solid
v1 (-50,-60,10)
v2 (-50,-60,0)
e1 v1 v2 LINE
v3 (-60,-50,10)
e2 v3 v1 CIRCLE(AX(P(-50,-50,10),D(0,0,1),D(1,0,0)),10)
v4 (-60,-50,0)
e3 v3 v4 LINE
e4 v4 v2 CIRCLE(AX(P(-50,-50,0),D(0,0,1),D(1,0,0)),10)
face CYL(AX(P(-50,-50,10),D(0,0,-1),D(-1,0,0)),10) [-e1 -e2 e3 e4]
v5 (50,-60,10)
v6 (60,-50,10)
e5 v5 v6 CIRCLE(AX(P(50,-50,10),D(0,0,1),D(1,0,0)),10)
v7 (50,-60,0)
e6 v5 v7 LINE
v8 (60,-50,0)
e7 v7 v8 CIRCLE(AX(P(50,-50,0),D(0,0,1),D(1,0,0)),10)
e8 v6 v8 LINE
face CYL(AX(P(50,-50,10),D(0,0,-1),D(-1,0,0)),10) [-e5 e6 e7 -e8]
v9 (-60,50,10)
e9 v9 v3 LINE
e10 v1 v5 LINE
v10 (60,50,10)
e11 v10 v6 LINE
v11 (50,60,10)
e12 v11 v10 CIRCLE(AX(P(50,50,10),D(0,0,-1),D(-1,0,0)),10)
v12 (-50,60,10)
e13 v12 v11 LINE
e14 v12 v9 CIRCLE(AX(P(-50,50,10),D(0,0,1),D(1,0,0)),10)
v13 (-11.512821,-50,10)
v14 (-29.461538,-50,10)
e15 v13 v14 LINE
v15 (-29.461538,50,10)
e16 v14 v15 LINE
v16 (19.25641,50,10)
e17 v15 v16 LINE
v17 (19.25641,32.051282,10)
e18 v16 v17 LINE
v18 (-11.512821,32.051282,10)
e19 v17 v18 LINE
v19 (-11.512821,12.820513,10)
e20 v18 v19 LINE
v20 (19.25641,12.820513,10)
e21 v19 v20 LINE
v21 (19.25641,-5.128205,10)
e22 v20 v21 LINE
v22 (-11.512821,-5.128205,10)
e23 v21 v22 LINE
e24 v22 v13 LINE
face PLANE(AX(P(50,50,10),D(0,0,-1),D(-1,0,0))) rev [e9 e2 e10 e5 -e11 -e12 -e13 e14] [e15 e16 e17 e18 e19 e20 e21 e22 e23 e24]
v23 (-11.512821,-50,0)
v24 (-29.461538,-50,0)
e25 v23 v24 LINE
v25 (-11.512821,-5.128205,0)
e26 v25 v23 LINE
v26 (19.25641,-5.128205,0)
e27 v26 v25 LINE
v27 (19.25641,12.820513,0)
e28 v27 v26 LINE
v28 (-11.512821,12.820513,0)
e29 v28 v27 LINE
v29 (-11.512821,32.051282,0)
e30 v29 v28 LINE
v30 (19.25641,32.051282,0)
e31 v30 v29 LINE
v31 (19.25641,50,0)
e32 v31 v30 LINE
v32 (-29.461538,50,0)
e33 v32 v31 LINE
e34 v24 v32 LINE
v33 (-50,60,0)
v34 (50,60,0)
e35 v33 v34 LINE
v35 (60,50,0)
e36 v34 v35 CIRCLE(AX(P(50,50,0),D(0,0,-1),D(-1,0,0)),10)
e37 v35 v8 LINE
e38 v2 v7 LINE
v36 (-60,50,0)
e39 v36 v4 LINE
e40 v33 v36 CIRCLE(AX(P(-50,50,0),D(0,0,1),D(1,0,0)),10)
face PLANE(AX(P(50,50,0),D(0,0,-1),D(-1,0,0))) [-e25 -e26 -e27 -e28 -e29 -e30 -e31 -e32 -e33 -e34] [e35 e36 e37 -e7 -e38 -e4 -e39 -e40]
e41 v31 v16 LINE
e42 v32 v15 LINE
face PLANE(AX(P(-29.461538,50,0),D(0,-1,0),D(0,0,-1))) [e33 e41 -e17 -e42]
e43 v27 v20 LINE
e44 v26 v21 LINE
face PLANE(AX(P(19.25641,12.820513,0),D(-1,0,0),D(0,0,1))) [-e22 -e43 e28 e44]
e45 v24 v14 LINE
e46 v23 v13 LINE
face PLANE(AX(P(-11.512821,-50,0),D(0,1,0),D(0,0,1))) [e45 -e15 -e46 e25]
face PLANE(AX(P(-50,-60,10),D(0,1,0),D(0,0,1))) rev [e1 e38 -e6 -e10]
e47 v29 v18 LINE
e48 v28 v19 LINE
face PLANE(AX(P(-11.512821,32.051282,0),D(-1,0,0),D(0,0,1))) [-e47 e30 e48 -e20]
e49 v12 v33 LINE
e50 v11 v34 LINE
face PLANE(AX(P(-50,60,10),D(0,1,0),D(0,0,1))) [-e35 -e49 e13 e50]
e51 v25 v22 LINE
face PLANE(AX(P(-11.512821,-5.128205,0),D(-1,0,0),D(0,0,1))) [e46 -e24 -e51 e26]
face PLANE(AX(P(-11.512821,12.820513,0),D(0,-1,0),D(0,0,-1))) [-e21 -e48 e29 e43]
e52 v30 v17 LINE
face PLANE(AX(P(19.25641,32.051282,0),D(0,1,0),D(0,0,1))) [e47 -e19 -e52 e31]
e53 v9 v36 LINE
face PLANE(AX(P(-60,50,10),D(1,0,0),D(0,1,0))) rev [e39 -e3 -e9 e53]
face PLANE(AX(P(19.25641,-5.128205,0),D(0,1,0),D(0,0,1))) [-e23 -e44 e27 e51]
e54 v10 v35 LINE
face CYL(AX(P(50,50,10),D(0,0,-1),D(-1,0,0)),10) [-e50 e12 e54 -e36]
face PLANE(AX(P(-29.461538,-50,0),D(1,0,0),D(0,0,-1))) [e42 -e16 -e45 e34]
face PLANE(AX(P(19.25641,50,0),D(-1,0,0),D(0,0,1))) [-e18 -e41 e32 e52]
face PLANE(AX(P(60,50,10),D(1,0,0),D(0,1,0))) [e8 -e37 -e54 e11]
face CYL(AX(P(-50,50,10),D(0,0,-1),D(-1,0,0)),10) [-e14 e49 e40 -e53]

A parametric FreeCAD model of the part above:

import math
import FreeCAD as App
import Part
import Sketcher
Q = App.Units.Quantity

doc = App.newDocument("Part")
body = doc.addObject("PartDesign::Body", "Body")

# Sketch on XY plane
sketch1 = body.newObject("Sketcher::SketchObject", "Sketch")
sketch1.AttachmentSupport = (doc.getObject("XY_Plane"), [""])
sketch1.MapMode = "FlatFace"
sketch1.addGeometry(Part.LineSegment(App.Vector(50, 60, 0), App.Vector(-50, 60, 0)), False)
sketch1.addGeometry(Part.ArcOfCircle(Part.Circle(App.Vector(-50, 50, 0), App.Vector(0, 0, 1), 10), math.radians(90), math.radians(180)), False)
sketch1.addGeometry(Part.LineSegment(App.Vector(-60, 50, 0), App.Vector(-60, -50, 0)), False)
sketch1.addGeometry(Part.ArcOfCircle(Part.Circle(App.Vector(-50, -50, 0), App.Vector(0, 0, 1), 10), math.radians(180), math.radians(270)), False)
sketch1.addGeometry(Part.LineSegment(App.Vector(-50, -60, 0), App.Vector(50, -60, 0)), False)
sketch1.addGeometry(Part.ArcOfCircle(Part.Circle(App.Vector(50, -50, 0), App.Vector(0, 0, 1), 10), math.radians(-90), math.radians(0)), False)
sketch1.addGeometry(Part.LineSegment(App.Vector(60, -50, 0), App.Vector(60, 50, 0)), False)
sketch1.addGeometry(Part.ArcOfCircle(Part.Circle(App.Vector(50, 50, 0), App.Vector(0, 0, 1), 10), math.radians(0), math.radians(90)), False)
sketch1.addConstraint(Sketcher.Constraint("Tangent", 0, 2, 1, 1))
sketch1.addConstraint(Sketcher.Constraint("Tangent", 1, 2, 2, 1))
sketch1.addConstraint(Sketcher.Constraint("Tangent", 2, 2, 3, 1))
sketch1.addConstraint(Sketcher.Constraint("Tangent", 3, 2, 4, 1))
sketch1.addConstraint(Sketcher.Constraint("Tangent", 4, 2, 5, 1))
sketch1.addConstraint(Sketcher.Constraint("Tangent", 5, 2, 6, 1))
sketch1.addConstraint(Sketcher.Constraint("Tangent", 6, 2, 7, 1))
sketch1.addConstraint(Sketcher.Constraint("Tangent", 7, 2, 0, 1))
sketch1.addConstraint(Sketcher.Constraint("Horizontal", 0))
sketch1.addConstraint(Sketcher.Constraint("Vertical", 2))
sketch1.addConstraint(Sketcher.Constraint("Horizontal", 4))
sketch1.addConstraint(Sketcher.Constraint("Vertical", 6))
sketch1.addConstraint(Sketcher.Constraint("Equal", 1, 3))
sketch1.addConstraint(Sketcher.Constraint("Equal", 3, 5))
sketch1.addConstraint(Sketcher.Constraint("Equal", 5, 7))
sketch1.addConstraint(Sketcher.Constraint("Symmetric", 1, 3, 5, 3, -1, 1))
sketch1.addConstraint(Sketcher.Constraint("Equal", 4, 2))
sketch1.addConstraint(Sketcher.Constraint("Radius", 1, Q("10 mm")))
sketch1.addConstraint(Sketcher.Constraint("DistanceX", 0, 2, 0, 1, Q("100 mm")))
pad1 = body.newObject("PartDesign::Pad", "Pad")
pad1.Profile = sketch1
pad1.Length = 10

# Sketch on XY plane
sketch2 = body.newObject("Sketcher::SketchObject", "Sketch001")
sketch2.AttachmentSupport = (doc.getObject("XY_Plane"), [""])
sketch2.MapMode = "FlatFace"
sketch2.AttachmentOffset = App.Placement(App.Vector(0, 0, 10), App.Rotation())
sketch2.addGeometry(Part.LineSegment(App.Vector(19, 50, 0), App.Vector(-29, 50, 0)), False)
sketch2.addGeometry(Part.LineSegment(App.Vector(-29, 50, 0), App.Vector(-29, -50, 0)), False)
sketch2.addGeometry(Part.LineSegment(App.Vector(-29, -50, 0), App.Vector(-12, -50, 0)), False)
sketch2.addGeometry(Part.LineSegment(App.Vector(-12, -50, 0), App.Vector(-12, -5, 0)), False)
sketch2.addGeometry(Part.LineSegment(App.Vector(-12, -5, 0), App.Vector(19, -5, 0)), False)
sketch2.addGeometry(Part.LineSegment(App.Vector(19, -5, 0), App.Vector(19, 13, 0)), False)
sketch2.addGeometry(Part.LineSegment(App.Vector(19, 13, 0), App.Vector(-12, 13, 0)), False)
sketch2.addGeometry(Part.LineSegment(App.Vector(-12, 13, 0), App.Vector(-12, 32, 0)), False)
sketch2.addGeometry(Part.LineSegment(App.Vector(-12, 32, 0), App.Vector(19, 32, 0)), False)
sketch2.addGeometry(Part.LineSegment(App.Vector(19, 32, 0), App.Vector(19, 50, 0)), False)
sketch2.addConstraint(Sketcher.Constraint("Coincident", 0, 2, 1, 1))
sketch2.addConstraint(Sketcher.Constraint("Coincident", 1, 2, 2, 1))
sketch2.addConstraint(Sketcher.Constraint("Coincident", 2, 2, 3, 1))
sketch2.addConstraint(Sketcher.Constraint("Coincident", 3, 2, 4, 1))
sketch2.addConstraint(Sketcher.Constraint("Coincident", 4, 2, 5, 1))
sketch2.addConstraint(Sketcher.Constraint("Coincident", 5, 2, 6, 1))
sketch2.addConstraint(Sketcher.Constraint("Coincident", 6, 2, 7, 1))
sketch2.addConstraint(Sketcher.Constraint("Coincident", 7, 2, 8, 1))
sketch2.addConstraint(Sketcher.Constraint("Coincident", 8, 2, 9, 1))
sketch2.addConstraint(Sketcher.Constraint("Coincident", 9, 2, 0, 1))
sketch2.addConstraint(Sketcher.Constraint("Horizontal", 0))
sketch2.addConstraint(Sketcher.Constraint("Vertical", 1))
sketch2.addConstraint(Sketcher.Constraint("Horizontal", 2))
sketch2.addConstraint(Sketcher.Constraint("Vertical", 3))
sketch2.addConstraint(Sketcher.Constraint("Horizontal", 4))
sketch2.addConstraint(Sketcher.Constraint("Vertical", 5))
sketch2.addConstraint(Sketcher.Constraint("Horizontal", 6))
sketch2.addConstraint(Sketcher.Constraint("Vertical", 7))
sketch2.addConstraint(Sketcher.Constraint("Horizontal", 8))
sketch2.addConstraint(Sketcher.Constraint("Vertical", 9))
sketch2.addConstraint(Sketcher.Constraint("Vertical", 3, 2, 6, 2))
sketch2.addConstraint(Sketcher.Constraint("Vertical", 5, 2, 8, 2))
sketch2.addConstraint(Sketcher.Constraint("Equal", 2, 5))
sketch2.addConstraint(Sketcher.Constraint("Equal", 5, 9))
sketch2.addConstraint(Sketcher.Constraint("DistanceY", 1, 2, 1, 1, Q("100 mm")))
sketch2.addConstraint(Sketcher.Constraint("DistanceY", -1, 1, 0, 2, Q("50 mm")))
sketch2.addConstraint(Sketcher.Constraint("DistanceX", 0, 2, 0, 1, Q("48.717949 mm")))
sketch2.addConstraint(Sketcher.Constraint("DistanceX", 4, 1, 4, 2, Q("30.769231 mm")))
sketch2.addConstraint(Sketcher.Constraint("DistanceY", 7, 1, 7, 2, Q("19.230769 mm")))
sketch2.addConstraint(Sketcher.Constraint("DistanceX", 0, 2, -1, 1, Q("29.461538 mm")))
pocket1 = body.newObject("PartDesign::Pocket", "Pocket")
pocket1.Profile = sketch2
pocket1.Length = 10

doc.recompute()
